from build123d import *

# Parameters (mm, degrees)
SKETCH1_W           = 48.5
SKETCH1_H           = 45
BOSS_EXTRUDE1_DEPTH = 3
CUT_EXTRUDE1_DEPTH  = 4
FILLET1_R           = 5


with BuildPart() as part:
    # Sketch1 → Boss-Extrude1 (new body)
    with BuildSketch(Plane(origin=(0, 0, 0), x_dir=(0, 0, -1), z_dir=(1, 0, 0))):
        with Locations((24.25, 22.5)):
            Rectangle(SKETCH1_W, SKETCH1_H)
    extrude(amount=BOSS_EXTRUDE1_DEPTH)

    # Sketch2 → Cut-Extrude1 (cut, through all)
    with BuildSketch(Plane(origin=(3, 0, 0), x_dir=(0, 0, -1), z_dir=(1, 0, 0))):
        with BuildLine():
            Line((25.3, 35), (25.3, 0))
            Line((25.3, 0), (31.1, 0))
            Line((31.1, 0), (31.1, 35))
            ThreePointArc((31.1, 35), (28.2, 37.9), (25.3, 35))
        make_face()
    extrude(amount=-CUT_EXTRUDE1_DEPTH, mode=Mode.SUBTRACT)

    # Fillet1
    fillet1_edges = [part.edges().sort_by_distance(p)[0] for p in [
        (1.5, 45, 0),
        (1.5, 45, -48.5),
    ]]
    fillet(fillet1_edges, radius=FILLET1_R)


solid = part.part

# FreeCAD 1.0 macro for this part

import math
import FreeCAD as App
import Part
import Sketcher

V = App.Vector
Q = App.Units.Quantity


def edges_at(feature, points):
    """Names of the edges that pass closest to the given points."""
    edges = feature.Shape.Edges
    near = lambda p: min(range(len(edges)), key=lambda i: edges[i].distToShape(Part.Vertex(*p))[0])
    return sorted({f"Edge{near(p) + 1}" for p in points})

doc = App.newDocument("Part")
body = doc.addObject("PartDesign::Body", "Body")

sketch1 = body.newObject("Sketcher::SketchObject", "Sketch")
sketch1.AttachmentSupport = (doc.getObject("YZ_Plane"), [""])
sketch1.MapMode = "FlatFace"
sketch1.addGeometry([
    Part.LineSegment(V(45, 0, 0), V(0, 0, 0)),
    Part.LineSegment(V(0, 0, 0), V(0, -48, 0)),
    Part.LineSegment(V(0, -48, 0), V(45, -48, 0)),
    Part.LineSegment(V(45, -48, 0), V(45, 0, 0)),
], False)
sketch1.addConstraint([
    Sketcher.Constraint("Coincident", 0, 2, 1, 1),
    Sketcher.Constraint("Coincident", 1, 2, 2, 1),
    Sketcher.Constraint("Coincident", 2, 2, 3, 1),
    Sketcher.Constraint("Coincident", 3, 2, 0, 1),
    Sketcher.Constraint("Horizontal", 0),
    Sketcher.Constraint("Vertical", 1),
    Sketcher.Constraint("Horizontal", 2),
    Sketcher.Constraint("Vertical", 3),
    Sketcher.Constraint("Coincident", 0, 2, -1, 1),
    Sketcher.Constraint("DistanceX", 0, 2, 0, 1, Q("45 mm")),
    Sketcher.Constraint("DistanceY", 1, 2, 1, 1, Q("48.5 mm")),
])
pad1 = body.newObject("PartDesign::Pad", "Pad")
pad1.Profile = sketch1
pad1.Length = 3

sketch2 = body.newObject("Sketcher::SketchObject", "Sketch001")
sketch2.AttachmentSupport = (doc.getObject("YZ_Plane"), [""])
sketch2.MapMode = "FlatFace"
sketch2.AttachmentOffset = App.Placement(V(0, 0, 3), App.Rotation())
sketch2.addGeometry([
    Part.LineSegment(V(35, -25.3, 0), V(0, -25.3, 0)),
    Part.LineSegment(V(0, -25.3, 0), V(0, -31.1, 0)),
    Part.LineSegment(V(0, -31.1, 0), V(35, -31.1, 0)),
    Part.ArcOfCircle(Part.Circle(V(35, -28.2, 0), V(0, 0, 1), 2.9), math.radians(-90), math.radians(90)),
], False)
sketch2.addConstraint([
    Sketcher.Constraint("Coincident", 0, 2, 1, 1),
    Sketcher.Constraint("Coincident", 1, 2, 2, 1),
    Sketcher.Constraint("Tangent", 2, 2, 3, 1),
    Sketcher.Constraint("Tangent", 3, 2, 0, 1),
    Sketcher.Constraint("Horizontal", 0),
    Sketcher.Constraint("Vertical", 1),
    Sketcher.Constraint("Horizontal", 2),
    Sketcher.Constraint("PointOnObject", 0, 2, -2),
    Sketcher.Constraint("Radius", 3, Q("2.9 mm")),
    Sketcher.Constraint("DistanceX", 0, 2, 0, 1, Q("35 mm")),
    Sketcher.Constraint("DistanceY", 3, 3, -1, 1, Q("28.2 mm")),
])
pocket1 = body.newObject("PartDesign::Pocket", "Pocket")
pocket1.Profile = sketch2
pocket1.Type = "ThroughAll"
doc.recompute()

fillet = body.newObject("PartDesign::Fillet", "Fillet")
fillet.Base = (pocket1, edges_at(pocket1, [(1.5, 45, 0), (1.5, 45, -48.5)]))
fillet.Radius = 5

doc.recompute()
